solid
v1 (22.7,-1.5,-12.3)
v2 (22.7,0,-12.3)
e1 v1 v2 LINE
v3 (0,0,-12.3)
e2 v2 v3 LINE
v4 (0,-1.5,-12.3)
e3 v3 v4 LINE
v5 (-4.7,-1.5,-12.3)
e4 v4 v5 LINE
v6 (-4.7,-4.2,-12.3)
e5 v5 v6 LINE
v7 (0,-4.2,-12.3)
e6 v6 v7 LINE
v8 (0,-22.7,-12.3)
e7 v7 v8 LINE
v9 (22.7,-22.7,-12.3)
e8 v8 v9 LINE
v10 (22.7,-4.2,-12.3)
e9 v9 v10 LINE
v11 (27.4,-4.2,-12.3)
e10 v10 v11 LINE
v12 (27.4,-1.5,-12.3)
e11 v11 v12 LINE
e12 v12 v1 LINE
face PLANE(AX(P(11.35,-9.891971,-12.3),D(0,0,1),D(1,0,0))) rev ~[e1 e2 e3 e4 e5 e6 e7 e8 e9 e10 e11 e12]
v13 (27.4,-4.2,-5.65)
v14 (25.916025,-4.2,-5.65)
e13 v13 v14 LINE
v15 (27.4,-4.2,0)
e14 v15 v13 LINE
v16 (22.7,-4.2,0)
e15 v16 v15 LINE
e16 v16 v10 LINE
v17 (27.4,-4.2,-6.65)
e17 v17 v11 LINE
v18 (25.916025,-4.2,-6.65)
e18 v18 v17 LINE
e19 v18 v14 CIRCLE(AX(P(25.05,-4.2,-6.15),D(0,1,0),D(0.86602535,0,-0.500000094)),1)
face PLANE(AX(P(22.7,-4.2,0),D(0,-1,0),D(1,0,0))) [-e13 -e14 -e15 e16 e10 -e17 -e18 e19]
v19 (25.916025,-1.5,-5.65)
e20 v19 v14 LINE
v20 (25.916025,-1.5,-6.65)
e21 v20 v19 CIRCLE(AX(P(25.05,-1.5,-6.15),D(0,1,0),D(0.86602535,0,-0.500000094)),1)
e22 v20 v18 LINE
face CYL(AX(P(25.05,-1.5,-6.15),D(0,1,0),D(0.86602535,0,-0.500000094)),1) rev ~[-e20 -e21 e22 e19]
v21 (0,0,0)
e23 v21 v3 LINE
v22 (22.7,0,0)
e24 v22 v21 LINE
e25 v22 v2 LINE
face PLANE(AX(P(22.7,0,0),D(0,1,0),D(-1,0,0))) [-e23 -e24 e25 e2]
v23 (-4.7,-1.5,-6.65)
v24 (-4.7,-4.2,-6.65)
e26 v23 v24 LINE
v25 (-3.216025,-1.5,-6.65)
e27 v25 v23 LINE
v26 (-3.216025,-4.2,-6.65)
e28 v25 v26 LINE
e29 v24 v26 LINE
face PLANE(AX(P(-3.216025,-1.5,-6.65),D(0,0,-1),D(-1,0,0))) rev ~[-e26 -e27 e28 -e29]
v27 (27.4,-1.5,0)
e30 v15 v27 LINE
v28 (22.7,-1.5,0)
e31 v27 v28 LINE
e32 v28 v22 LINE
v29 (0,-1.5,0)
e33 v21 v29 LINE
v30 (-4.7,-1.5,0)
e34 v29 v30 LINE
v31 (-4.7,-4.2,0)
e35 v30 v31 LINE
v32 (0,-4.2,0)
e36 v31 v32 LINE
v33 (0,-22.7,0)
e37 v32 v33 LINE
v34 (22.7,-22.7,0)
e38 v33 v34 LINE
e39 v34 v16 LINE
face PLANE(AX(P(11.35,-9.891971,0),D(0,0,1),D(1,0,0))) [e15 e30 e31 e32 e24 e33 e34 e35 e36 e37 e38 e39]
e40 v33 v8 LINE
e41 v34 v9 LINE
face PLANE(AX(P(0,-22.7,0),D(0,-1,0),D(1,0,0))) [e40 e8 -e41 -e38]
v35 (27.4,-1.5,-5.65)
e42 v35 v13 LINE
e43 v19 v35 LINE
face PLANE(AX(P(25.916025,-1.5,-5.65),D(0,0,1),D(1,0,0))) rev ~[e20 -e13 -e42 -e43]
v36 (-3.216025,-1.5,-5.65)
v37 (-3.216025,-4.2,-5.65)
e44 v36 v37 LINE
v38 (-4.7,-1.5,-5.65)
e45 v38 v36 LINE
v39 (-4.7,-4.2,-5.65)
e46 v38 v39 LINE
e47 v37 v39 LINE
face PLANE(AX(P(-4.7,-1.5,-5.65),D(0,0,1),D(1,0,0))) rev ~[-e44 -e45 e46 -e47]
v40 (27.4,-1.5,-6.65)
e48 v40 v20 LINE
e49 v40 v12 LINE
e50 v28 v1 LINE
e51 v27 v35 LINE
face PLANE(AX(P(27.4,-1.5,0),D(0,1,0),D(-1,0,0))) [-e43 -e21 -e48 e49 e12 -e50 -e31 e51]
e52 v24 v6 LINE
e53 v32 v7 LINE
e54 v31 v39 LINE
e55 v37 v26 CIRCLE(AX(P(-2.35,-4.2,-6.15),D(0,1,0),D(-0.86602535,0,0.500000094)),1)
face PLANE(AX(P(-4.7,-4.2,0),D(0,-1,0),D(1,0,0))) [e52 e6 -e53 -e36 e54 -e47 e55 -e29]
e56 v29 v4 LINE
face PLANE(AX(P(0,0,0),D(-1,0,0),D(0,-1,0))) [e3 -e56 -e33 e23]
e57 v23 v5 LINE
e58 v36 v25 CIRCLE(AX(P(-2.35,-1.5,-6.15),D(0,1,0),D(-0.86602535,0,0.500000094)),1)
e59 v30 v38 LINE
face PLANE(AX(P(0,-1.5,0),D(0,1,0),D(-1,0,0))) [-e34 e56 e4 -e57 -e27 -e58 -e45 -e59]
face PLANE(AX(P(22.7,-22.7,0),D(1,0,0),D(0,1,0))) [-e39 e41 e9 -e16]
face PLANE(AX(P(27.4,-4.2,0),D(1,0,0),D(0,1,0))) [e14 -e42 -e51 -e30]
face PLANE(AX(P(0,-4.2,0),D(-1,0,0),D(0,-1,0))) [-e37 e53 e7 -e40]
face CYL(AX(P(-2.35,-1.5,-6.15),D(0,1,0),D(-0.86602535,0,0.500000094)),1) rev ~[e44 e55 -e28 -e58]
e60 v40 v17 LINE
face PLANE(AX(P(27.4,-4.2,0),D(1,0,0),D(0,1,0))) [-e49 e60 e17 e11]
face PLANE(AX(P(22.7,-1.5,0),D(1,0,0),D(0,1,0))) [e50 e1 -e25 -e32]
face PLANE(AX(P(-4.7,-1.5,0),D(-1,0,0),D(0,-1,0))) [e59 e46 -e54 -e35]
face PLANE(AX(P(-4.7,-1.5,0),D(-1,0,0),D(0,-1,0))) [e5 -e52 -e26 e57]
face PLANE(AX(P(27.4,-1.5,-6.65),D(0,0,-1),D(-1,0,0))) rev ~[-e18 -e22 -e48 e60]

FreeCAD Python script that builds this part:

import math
import FreeCAD as App
import Part
import Sketcher

V = App.Vector
Q = App.Units.Quantity

doc = App.newDocument("Part")
body = doc.addObject("PartDesign::Body", "Body")
body.AllowCompound = True

sketch1 = body.newObject("Sketcher::SketchObject", "Sketch")
sketch1.AttachmentSupport = (doc.getObject("XZ_Plane"), [""])
sketch1.MapMode = "FlatFace"
sketch1.AttachmentOffset = App.Placement(V(0, 0, 1.5), App.Rotation())
sketch1.addGeometry([
    Part.LineSegment(V(-3.2, -6.7, 0), V(-4.7, -6.7, 0)),
    Part.LineSegment(V(-4.7, -6.7, 0), V(-4.7, -5.7, 0)),
    Part.LineSegment(V(-4.7, -5.7, 0), V(-3.2, -5.7, 0)),
    Part.ArcOfCircle(Part.Circle(V(-2.3, -6.2, 0), V(0, 0, 1), 1), math.radians(-150), math.radians(150)),
    Part.LineSegment(V(25.9, -5.7, 0), V(27.4, -5.7, 0)),
    Part.LineSegment(V(27.4, -5.7, 0), V(27.4, -6.7, 0)),
    Part.LineSegment(V(27.4, -6.7, 0), V(25.9, -6.7, 0)),
    Part.ArcOfCircle(Part.Circle(V(25, -6.2, 0), V(0, 0, 1), 1), math.radians(30), math.radians(330)),
], False)
sketch1.addConstraint([
    Sketcher.Constraint("Coincident", 0, 2, 1, 1),
    Sketcher.Constraint("Coincident", 1, 2, 2, 1),
    Sketcher.Constraint("Coincident", 2, 2, 3, 2),
    Sketcher.Constraint("Coincident", 3, 1, 0, 1),
    Sketcher.Constraint("Coincident", 4, 2, 5, 1),
    Sketcher.Constraint("Coincident", 5, 2, 6, 1),
    Sketcher.Constraint("Coincident", 6, 2, 7, 2),
    Sketcher.Constraint("Coincident", 7, 1, 4, 1),
    Sketcher.Constraint("Horizontal", 0),
    Sketcher.Constraint("Vertical", 1),
    Sketcher.Constraint("Horizontal", 2),
    Sketcher.Constraint("Horizontal", 4),
    Sketcher.Constraint("Vertical", 5),
    Sketcher.Constraint("Horizontal", 6),
    Sketcher.Constraint("Equal", 3, 7),
    Sketcher.Constraint("Horizontal", 3, 3, 7, 3),
    Sketcher.Constraint("Horizontal", 2, 2, 4, 2),
    Sketcher.Constraint("Horizontal", 3, 1, 5, 2),
    Sketcher.Constraint("Vertical", 2, 2, 3, 1),
    Sketcher.Constraint("Equal", 2, 4),
    Sketcher.Constraint("Radius", 3, Q("1 mm")),
    Sketcher.Constraint("DistanceY", 1, 1, 1, 2, Q("1 mm")),
    Sketcher.Constraint("DistanceX", 0, 2, -1, 1, Q("4.7 mm")),
    Sketcher.Constraint("DistanceX", -1, 1, 4, 2, Q("27.4 mm")),
    Sketcher.Constraint("DistanceX", 3, 3, 7, 3, Q("27.4 mm")),
    Sketcher.Constraint("DistanceY", 3, 3, -1, 1, Q("6.15 mm")),
])
pad1 = body.newObject("PartDesign::Pad", "Pad")
pad1.Profile = sketch1
pad1.Length = 12.3
body2 = doc.addObject("PartDesign::Body", "Body001")

sketch2 = body2.newObject("Sketcher::SketchObject", "Sketch001")
sketch2.AttachmentSupport = (doc.getObject("XY_Plane001"), [""])
sketch2.MapMode = "FlatFace"
sketch2.addGeometry([
    Part.LineSegment(V(22.7, -22.7, 0), V(22.7, -4.2, 0)),
    Part.LineSegment(V(22.7, -4.2, 0), V(27.4, -4.2, 0)),
    Part.LineSegment(V(27.4, -4.2, 0), V(27.4, -1.5, 0)),
    Part.LineSegment(V(27.4, -1.5, 0), V(22.7, -1.5, 0)),
    Part.LineSegment(V(22.7, -1.5, 0), V(22.7, 0, 0)),
    Part.LineSegment(V(22.7, 0, 0), V(0, 0, 0)),
    Part.LineSegment(V(0, 0, 0), V(0, -1.5, 0)),
    Part.LineSegment(V(0, -1.5, 0), V(-4.7, -1.5, 0)),
    Part.LineSegment(V(-4.7, -1.5, 0), V(-4.7, -4.2, 0)),
    Part.LineSegment(V(-4.7, -4.2, 0), V(0, -4.2, 0)),
    Part.LineSegment(V(0, -4.2, 0), V(0, -22.7, 0)),
    Part.LineSegment(V(0, -22.7, 0), V(22.7, -22.7, 0)),
], False)
sketch2.addConstraint([
    Sketcher.Constraint("Coincident", 0, 2, 1, 1),
    Sketcher.Constraint("Coincident", 1, 2, 2, 1),
    Sketcher.Constraint("Coincident", 2, 2, 3, 1),
    Sketcher.Constraint("Coincident", 3, 2, 4, 1),
    Sketcher.Constraint("Coincident", 4, 2, 5, 1),
    Sketcher.Constraint("Coincident", 5, 2, 6, 1),
    Sketcher.Constraint("Coincident", 6, 2, 7, 1),
    Sketcher.Constraint("Coincident", 7, 2, 8, 1),
    Sketcher.Constraint("Coincident", 8, 2, 9, 1),
    Sketcher.Constraint("Coincident", 9, 2, 10, 1),
    Sketcher.Constraint("Coincident", 10, 2, 11, 1),
    Sketcher.Constraint("Coincident", 11, 2, 0, 1),
    Sketcher.Constraint("Vertical", 0),
    Sketcher.Constraint("Horizontal", 1),
    Sketcher.Constraint("Vertical", 2),
    Sketcher.Constraint("Horizontal", 3),
    Sketcher.Constraint("Vertical", 4),
    Sketcher.Constraint("Horizontal", 5),
    Sketcher.Constraint("Vertical", 6),
    Sketcher.Constraint("Horizontal", 7),
    Sketcher.Constraint("Vertical", 8),
    Sketcher.Constraint("Horizontal", 9),
    Sketcher.Constraint("Vertical", 10),
    Sketcher.Constraint("Horizontal", 11),
    Sketcher.Constraint("Coincident", 5, 2, -1, 1),
    Sketcher.Constraint("PointOnObject", 9, 2, -2),
    Sketcher.Constraint("Horizontal", 3, 2, 6, 2),
    Sketcher.Constraint("Horizontal", 1, 2, 8, 2),
    Sketcher.Constraint("Vertical", 0, 2, 3, 2),
    Sketcher.Constraint("Equal", 3, 7),
    Sketcher.Constraint("DistanceX", 1, 1, 1, 2, Q("4.7 mm")),
    Sketcher.Constraint("DistanceX", 5, 2, 5, 1, Q("22.7 mm")),
    Sketcher.Constraint("DistanceY", 0, 1, 0, 2, Q("18.5 mm")),
    Sketcher.Constraint("DistanceY", 2, 1, 2, 2, Q("2.7 mm")),
    Sketcher.Constraint("DistanceY", 4, 1, 4, 2, Q("1.5 mm")),
])
pad2 = body2.newObject("PartDesign::Pad", "Pad001")
pad2.Profile = sketch2
pad2.Length = 12.3
pad2.Reversed = True
doc.recompute()

boolean = body2.newObject("PartDesign::Boolean", "Boolean")
boolean.Type = "Cut"
boolean.addObjects([body])

doc.recompute()
